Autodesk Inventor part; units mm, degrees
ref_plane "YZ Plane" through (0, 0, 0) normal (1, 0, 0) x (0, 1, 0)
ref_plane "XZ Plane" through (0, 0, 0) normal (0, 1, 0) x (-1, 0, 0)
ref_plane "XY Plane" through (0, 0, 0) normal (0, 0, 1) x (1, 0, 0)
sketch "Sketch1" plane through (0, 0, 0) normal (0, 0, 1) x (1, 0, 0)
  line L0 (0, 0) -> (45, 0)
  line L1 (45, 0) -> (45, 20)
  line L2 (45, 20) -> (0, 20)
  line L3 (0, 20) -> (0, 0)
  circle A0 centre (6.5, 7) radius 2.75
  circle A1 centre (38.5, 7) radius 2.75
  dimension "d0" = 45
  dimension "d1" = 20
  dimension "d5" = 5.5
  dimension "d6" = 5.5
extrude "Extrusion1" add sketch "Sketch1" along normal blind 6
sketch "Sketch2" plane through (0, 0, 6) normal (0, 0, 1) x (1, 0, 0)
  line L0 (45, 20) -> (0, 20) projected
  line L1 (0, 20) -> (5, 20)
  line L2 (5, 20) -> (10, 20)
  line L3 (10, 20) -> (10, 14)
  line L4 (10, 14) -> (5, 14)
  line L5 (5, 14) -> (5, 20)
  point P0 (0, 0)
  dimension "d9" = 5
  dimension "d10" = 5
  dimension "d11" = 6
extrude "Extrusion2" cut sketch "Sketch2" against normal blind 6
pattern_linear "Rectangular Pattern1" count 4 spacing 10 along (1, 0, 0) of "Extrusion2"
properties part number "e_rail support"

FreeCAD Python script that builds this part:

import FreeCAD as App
import Part
import Sketcher

V = App.Vector
Q = App.Units.Quantity


def add_polygon(sketch, points):
    """Adds a closed chain of lines whose ends are joined by coincident constraints."""
    first, n = sketch.GeometryCount, len(points)
    for a, b in zip(points, points[1:] + points[:1]):
        sketch.addGeometry(Part.LineSegment(App.Vector(*a, 0), App.Vector(*b, 0)), False)
    for i in range(n):
        sketch.addConstraint(Sketcher.Constraint("Coincident", first + i, 2, first + (i + 1) % n, 1))

doc = App.newDocument("Part")
body = doc.addObject("PartDesign::Body", "Body")

sketch1 = body.newObject("Sketcher::SketchObject", "Sketch")
sketch1.AttachmentSupport = (doc.getObject("XY_Plane"), [""])
sketch1.MapMode = "FlatFace"
add_polygon(sketch1, [(0, 20), (0, 0), (45, 0), (45, 20)])
sketch1.addGeometry(Part.Circle(V(6.5, 7, 0), V(0, 0, 1), 2.8), False)
sketch1.addGeometry(Part.Circle(V(38.5, 7, 0), V(0, 0, 1), 2.8), False)
sketch1.addConstraint([
    Sketcher.Constraint("Vertical", 0),
    Sketcher.Constraint("Horizontal", 1),
    Sketcher.Constraint("Vertical", 2),
    Sketcher.Constraint("Horizontal", 3),
    Sketcher.Constraint("Coincident", 0, 2, -1, 1),
    Sketcher.Constraint("Equal", 4, 5),
    Sketcher.Constraint("Horizontal", 4, 3, 5, 3),
    Sketcher.Constraint("Diameter", 4, Q("5.5 mm")),
    Sketcher.Constraint("DistanceX", 1, 1, 1, 2, Q("45 mm")),
    Sketcher.Constraint("DistanceY", 0, 2, 0, 1, Q("20 mm")),
    Sketcher.Constraint("DistanceY", -1, 1, 4, 3, Q("7 mm")),
    Sketcher.Constraint("DistanceX", 4, 3, 5, 3, Q("32 mm")),
    Sketcher.Constraint("DistanceX", -1, 1, 4, 3, Q("6.5 mm")),
])
pad1 = body.newObject("PartDesign::Pad", "Pad")
pad1.Profile = sketch1
pad1.Length = 6

sketch2 = body.newObject("Sketcher::SketchObject", "Sketch001")
sketch2.AttachmentSupport = (doc.getObject("XY_Plane"), [""])
sketch2.MapMode = "FlatFace"
sketch2.AttachmentOffset = App.Placement(V(0, 0, 6), App.Rotation())
add_polygon(sketch2, [(10, 14), (10, 20), (5, 20), (5, 14)])
sketch2.addConstraint([
    Sketcher.Constraint("Vertical", 0),
    Sketcher.Constraint("Horizontal", 1),
    Sketcher.Constraint("Vertical", 2),
    Sketcher.Constraint("Horizontal", 3),
    Sketcher.Constraint("DistanceX", 1, 2, 1, 1, Q("5 mm")),
    Sketcher.Constraint("DistanceY", 0, 1, 0, 2, Q("6 mm")),
    Sketcher.Constraint("DistanceX", -1, 1, 1, 2, Q("5 mm")),
    Sketcher.Constraint("DistanceY", -1, 1, 0, 2, Q("20 mm")),
])
pocket1 = body.newObject("PartDesign::Pocket", "Pocket")
pocket1.Profile = sketch2
pocket1.Length = 6
doc.recompute()

linearpattern = body.newObject("PartDesign::LinearPattern", "LinearPattern")
linearpattern.Originals = [pocket1]
linearpattern.Direction = (doc.getObject("X_Axis"), [""])
linearpattern.Mode = "offset"
linearpattern.Offset = 10
linearpattern.Occurrences = 4
body.Tip = linearpattern

doc.recompute()
